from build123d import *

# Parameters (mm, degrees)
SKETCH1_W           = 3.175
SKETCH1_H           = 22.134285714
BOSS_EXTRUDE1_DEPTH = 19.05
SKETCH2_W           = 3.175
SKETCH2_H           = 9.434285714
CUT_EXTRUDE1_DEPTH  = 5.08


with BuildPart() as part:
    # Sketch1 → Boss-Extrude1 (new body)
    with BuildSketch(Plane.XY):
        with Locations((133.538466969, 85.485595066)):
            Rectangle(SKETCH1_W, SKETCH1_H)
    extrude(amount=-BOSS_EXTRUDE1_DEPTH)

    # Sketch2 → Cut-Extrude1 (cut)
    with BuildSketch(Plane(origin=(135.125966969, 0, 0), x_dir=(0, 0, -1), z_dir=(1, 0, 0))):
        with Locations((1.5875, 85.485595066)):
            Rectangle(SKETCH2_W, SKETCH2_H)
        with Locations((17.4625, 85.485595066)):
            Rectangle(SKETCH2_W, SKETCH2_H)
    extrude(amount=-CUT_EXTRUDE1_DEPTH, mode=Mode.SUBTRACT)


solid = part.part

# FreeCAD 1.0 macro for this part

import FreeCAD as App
import Part
import Sketcher

V = App.Vector
Q = App.Units.Quantity


def add_polygon(sketch, points):
    """Adds a closed chain of lines whose ends are joined by coincident constraints."""
    first, n = sketch.GeometryCount, len(points)
    for a, b in zip(points, points[1:] + points[:1]):
        sketch.addGeometry(Part.LineSegment(App.Vector(*a, 0), App.Vector(*b, 0)), False)
    for i in range(n):
        sketch.addConstraint(Sketcher.Constraint("Coincident", first + i, 2, first + (i + 1) % n, 1))

doc = App.newDocument("Part")
params = doc.addObject("Spreadsheet::Sheet", "Params")
for row, (alias, value) in enumerate([
    ("sketch1_width", "0.125 in"),
    ("pad1_length", "0.75 in"),
    ("sketch2_height", "0.125 in"),
    ("pocket1_length", "0.2 in"),
], start=1):
    params.set(f"A{row}", alias)
    params.set(f"B{row}", "=" + value)
    params.setAlias(f"B{row}", alias)

body = doc.addObject("PartDesign::Body", "Body")

sketch1 = doc.addObject("Sketcher::SketchObject", "Sketch")
body.addObject(sketch1)
sketch1.AttachmentSupport = (doc.XY_Plane, [""])
sketch1.MapMode = "FlatFace"
add_polygon(sketch1, [(132, 96.6), (132, 74.4), (135.1, 74.4), (135.1, 96.6)])
sketch1.addConstraint([
    Sketcher.Constraint("Vertical", 0),
    Sketcher.Constraint("Horizontal", 1),
    Sketcher.Constraint("Vertical", 2),
    Sketcher.Constraint("Horizontal", 3),
    Sketcher.Constraint("DistanceX", 1, 1, 1, 2, Q("0.125 in")),
    Sketcher.Constraint("DistanceY", 0, 2, 0, 1, Q("22.134286 mm")),
    Sketcher.Constraint("DistanceX", -1, 1, 0, 2, Q("131.950967 mm")),
    Sketcher.Constraint("DistanceY", -1, 1, 0, 2, Q("74.418452 mm")),
])
sketch1.setExpression("Constraints[8]", "Params.sketch1_width")
pad1 = doc.addObject("PartDesign::Pad", "Pad")
body.addObject(pad1)
pad1.Profile = sketch1
pad1.setExpression("Length", "Params.pad1_length")
pad1.Reversed = True

sketch2 = doc.addObject("Sketcher::SketchObject", "Sketch001")
body.addObject(sketch2)
sketch2.AttachmentSupport = (doc.YZ_Plane, [""])
sketch2.MapMode = "FlatFace"
sketch2.AttachmentOffset = App.Placement(V(0, 0, 135.125967), App.Rotation())
add_polygon(sketch2, [(90.2, 0), (80.8, 0), (80.8, -3.2), (90.2, -3.2)])
add_polygon(sketch2, [(90.2, -15.9), (80.8, -15.9), (80.8, -19.1), (90.2, -19.1)])
sketch2.addConstraint([
    Sketcher.Constraint("Horizontal", 0),
    Sketcher.Constraint("Vertical", 1),
    Sketcher.Constraint("Horizontal", 2),
    Sketcher.Constraint("Vertical", 3),
    Sketcher.Constraint("Horizontal", 4),
    Sketcher.Constraint("Vertical", 5),
    Sketcher.Constraint("Horizontal", 6),
    Sketcher.Constraint("Vertical", 7),
    Sketcher.Constraint("PointOnObject", 0, 2, -1),
    Sketcher.Constraint("Vertical", 1, 2, 4, 2),
    Sketcher.Constraint("Vertical", 3, 2, 6, 2),
    Sketcher.Constraint("Equal", 3, 5),
    Sketcher.Constraint("DistanceY", 4, 2, 1, 2, Q("0.5 in")),
    Sketcher.Constraint("DistanceY", 1, 2, 1, 1, Q("0.125 in")),
    Sketcher.Constraint("DistanceX", 0, 2, 0, 1, Q("9.434286 mm")),
    Sketcher.Constraint("DistanceX", -1, 1, 0, 2, Q("80.768452 mm")),
])
sketch2.setExpression("Constraints[21]", "Params.sketch2_height")
pocket1 = doc.addObject("PartDesign::Pocket", "Pocket")
body.addObject(pocket1)
pocket1.Profile = sketch2
pocket1.setExpression("Length", "Params.pocket1_length")

doc.recompute()
